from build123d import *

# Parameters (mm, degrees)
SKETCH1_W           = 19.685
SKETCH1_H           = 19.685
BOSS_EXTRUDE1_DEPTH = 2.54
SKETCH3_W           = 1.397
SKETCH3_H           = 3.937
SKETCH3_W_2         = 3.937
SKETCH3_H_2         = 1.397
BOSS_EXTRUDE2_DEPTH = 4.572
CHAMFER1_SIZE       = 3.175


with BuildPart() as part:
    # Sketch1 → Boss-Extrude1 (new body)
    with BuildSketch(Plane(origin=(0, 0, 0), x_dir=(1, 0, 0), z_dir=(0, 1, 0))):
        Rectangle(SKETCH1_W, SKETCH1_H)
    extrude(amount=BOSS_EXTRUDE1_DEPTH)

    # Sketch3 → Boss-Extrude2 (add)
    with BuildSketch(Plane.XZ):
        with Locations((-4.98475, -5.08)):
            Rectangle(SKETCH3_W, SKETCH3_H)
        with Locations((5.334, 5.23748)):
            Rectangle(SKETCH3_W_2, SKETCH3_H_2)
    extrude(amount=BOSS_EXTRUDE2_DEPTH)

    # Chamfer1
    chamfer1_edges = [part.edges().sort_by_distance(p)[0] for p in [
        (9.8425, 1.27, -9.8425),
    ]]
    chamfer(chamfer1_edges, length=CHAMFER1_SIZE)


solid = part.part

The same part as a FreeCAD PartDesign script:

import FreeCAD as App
import Part
import Sketcher
Q = App.Units.Quantity


def edges_at(feature, points):
    """Names of the edges that pass closest to the given points."""
    edges = feature.Shape.Edges
    near = lambda p: min(range(len(edges)), key=lambda i: edges[i].distToShape(Part.Vertex(*p))[0])
    return sorted({f"Edge{near(p) + 1}" for p in points})


def add_polygon(sketch, points):
    """Adds a closed chain of lines whose ends are joined by coincident constraints."""
    first, n = sketch.GeometryCount, len(points)
    for a, b in zip(points, points[1:] + points[:1]):
        sketch.addGeometry(Part.LineSegment(App.Vector(*a, 0), App.Vector(*b, 0)), False)
    for i in range(n):
        sketch.addConstraint(Sketcher.Constraint("Coincident", first + i, 2, first + (i + 1) % n, 1))

doc = App.newDocument("Part")
body = doc.addObject("PartDesign::Body", "Body")

# Sketch on XZ plane
sketch1 = body.newObject("Sketcher::SketchObject", "Sketch")
sketch1.AttachmentSupport = (doc.getObject("XZ_Plane"), [""])
sketch1.MapMode = "FlatFace"
add_polygon(sketch1, [(-10, -10), (-10, 10), (10, 10), (10, -10)])  # lines 0-3
sketch1.addConstraint([
    Sketcher.Constraint("Vertical", 0),
    Sketcher.Constraint("Horizontal", 1),
    Sketcher.Constraint("Vertical", 2),
    Sketcher.Constraint("Horizontal", 3),
    Sketcher.Constraint("Symmetric", 0, 2, 2, 2, -1, 1),
    Sketcher.Constraint("Equal", 3, 0),
    Sketcher.Constraint("DistanceX", 1, 1, 1, 2, Q("0.775 in")),
])
pad1 = body.newObject("PartDesign::Pad", "Pad")
pad1.Profile = sketch1
pad1.Length = Q("0.1 in")
pad1.Reversed = True

# Sketch on XZ plane
sketch2 = body.newObject("Sketcher::SketchObject", "Sketch001")
sketch2.AttachmentSupport = (doc.getObject("XZ_Plane"), [""])
sketch2.MapMode = "FlatFace"
add_polygon(sketch2, [(-5.7, -3.1), (-5.7, -7), (-4.3, -7), (-4.3, -3.1)])  # lines 0-3
add_polygon(sketch2, [(3.4, 5.9), (3.4, 4.5), (7.3, 4.5), (7.3, 5.9)])  # lines 4-7
sketch2.addConstraint([
    Sketcher.Constraint("Vertical", 0),
    Sketcher.Constraint("Horizontal", 1),
    Sketcher.Constraint("Vertical", 2),
    Sketcher.Constraint("Horizontal", 3),
    Sketcher.Constraint("Vertical", 4),
    Sketcher.Constraint("Horizontal", 5),
    Sketcher.Constraint("Vertical", 6),
    Sketcher.Constraint("Horizontal", 7),
    Sketcher.Constraint("Equal", 7, 0),
    Sketcher.Constraint("Equal", 3, 4),
    Sketcher.Constraint("DistanceX", 1, 1, 1, 2, Q("0.055 in")),
    Sketcher.Constraint("DistanceX", 5, 1, 5, 2, Q("0.155 in")),
    Sketcher.Constraint("DistanceY", 0, 2, -1, 1, Q("0.2775 in")),
    Sketcher.Constraint("DistanceX", -1, 1, 4, 2, Q("0.1325 in")),
    Sketcher.Constraint("DistanceY", -1, 1, 4, 2, Q("0.1787 in")),
    Sketcher.Constraint("DistanceX", 0, 2, -1, 1, Q("5.68325 mm")),
])
pad2 = body.newObject("PartDesign::Pad", "Pad001")
pad2.Profile = sketch2
pad2.Length = Q("0.18 in")
doc.recompute()

chamfer = body.newObject("PartDesign::Chamfer", "Chamfer")
chamfer.Base = (pad2, edges_at(pad2, [(9.842, 1.27, -9.842)]))
chamfer.Size = Q("0.125 in")

doc.recompute()
